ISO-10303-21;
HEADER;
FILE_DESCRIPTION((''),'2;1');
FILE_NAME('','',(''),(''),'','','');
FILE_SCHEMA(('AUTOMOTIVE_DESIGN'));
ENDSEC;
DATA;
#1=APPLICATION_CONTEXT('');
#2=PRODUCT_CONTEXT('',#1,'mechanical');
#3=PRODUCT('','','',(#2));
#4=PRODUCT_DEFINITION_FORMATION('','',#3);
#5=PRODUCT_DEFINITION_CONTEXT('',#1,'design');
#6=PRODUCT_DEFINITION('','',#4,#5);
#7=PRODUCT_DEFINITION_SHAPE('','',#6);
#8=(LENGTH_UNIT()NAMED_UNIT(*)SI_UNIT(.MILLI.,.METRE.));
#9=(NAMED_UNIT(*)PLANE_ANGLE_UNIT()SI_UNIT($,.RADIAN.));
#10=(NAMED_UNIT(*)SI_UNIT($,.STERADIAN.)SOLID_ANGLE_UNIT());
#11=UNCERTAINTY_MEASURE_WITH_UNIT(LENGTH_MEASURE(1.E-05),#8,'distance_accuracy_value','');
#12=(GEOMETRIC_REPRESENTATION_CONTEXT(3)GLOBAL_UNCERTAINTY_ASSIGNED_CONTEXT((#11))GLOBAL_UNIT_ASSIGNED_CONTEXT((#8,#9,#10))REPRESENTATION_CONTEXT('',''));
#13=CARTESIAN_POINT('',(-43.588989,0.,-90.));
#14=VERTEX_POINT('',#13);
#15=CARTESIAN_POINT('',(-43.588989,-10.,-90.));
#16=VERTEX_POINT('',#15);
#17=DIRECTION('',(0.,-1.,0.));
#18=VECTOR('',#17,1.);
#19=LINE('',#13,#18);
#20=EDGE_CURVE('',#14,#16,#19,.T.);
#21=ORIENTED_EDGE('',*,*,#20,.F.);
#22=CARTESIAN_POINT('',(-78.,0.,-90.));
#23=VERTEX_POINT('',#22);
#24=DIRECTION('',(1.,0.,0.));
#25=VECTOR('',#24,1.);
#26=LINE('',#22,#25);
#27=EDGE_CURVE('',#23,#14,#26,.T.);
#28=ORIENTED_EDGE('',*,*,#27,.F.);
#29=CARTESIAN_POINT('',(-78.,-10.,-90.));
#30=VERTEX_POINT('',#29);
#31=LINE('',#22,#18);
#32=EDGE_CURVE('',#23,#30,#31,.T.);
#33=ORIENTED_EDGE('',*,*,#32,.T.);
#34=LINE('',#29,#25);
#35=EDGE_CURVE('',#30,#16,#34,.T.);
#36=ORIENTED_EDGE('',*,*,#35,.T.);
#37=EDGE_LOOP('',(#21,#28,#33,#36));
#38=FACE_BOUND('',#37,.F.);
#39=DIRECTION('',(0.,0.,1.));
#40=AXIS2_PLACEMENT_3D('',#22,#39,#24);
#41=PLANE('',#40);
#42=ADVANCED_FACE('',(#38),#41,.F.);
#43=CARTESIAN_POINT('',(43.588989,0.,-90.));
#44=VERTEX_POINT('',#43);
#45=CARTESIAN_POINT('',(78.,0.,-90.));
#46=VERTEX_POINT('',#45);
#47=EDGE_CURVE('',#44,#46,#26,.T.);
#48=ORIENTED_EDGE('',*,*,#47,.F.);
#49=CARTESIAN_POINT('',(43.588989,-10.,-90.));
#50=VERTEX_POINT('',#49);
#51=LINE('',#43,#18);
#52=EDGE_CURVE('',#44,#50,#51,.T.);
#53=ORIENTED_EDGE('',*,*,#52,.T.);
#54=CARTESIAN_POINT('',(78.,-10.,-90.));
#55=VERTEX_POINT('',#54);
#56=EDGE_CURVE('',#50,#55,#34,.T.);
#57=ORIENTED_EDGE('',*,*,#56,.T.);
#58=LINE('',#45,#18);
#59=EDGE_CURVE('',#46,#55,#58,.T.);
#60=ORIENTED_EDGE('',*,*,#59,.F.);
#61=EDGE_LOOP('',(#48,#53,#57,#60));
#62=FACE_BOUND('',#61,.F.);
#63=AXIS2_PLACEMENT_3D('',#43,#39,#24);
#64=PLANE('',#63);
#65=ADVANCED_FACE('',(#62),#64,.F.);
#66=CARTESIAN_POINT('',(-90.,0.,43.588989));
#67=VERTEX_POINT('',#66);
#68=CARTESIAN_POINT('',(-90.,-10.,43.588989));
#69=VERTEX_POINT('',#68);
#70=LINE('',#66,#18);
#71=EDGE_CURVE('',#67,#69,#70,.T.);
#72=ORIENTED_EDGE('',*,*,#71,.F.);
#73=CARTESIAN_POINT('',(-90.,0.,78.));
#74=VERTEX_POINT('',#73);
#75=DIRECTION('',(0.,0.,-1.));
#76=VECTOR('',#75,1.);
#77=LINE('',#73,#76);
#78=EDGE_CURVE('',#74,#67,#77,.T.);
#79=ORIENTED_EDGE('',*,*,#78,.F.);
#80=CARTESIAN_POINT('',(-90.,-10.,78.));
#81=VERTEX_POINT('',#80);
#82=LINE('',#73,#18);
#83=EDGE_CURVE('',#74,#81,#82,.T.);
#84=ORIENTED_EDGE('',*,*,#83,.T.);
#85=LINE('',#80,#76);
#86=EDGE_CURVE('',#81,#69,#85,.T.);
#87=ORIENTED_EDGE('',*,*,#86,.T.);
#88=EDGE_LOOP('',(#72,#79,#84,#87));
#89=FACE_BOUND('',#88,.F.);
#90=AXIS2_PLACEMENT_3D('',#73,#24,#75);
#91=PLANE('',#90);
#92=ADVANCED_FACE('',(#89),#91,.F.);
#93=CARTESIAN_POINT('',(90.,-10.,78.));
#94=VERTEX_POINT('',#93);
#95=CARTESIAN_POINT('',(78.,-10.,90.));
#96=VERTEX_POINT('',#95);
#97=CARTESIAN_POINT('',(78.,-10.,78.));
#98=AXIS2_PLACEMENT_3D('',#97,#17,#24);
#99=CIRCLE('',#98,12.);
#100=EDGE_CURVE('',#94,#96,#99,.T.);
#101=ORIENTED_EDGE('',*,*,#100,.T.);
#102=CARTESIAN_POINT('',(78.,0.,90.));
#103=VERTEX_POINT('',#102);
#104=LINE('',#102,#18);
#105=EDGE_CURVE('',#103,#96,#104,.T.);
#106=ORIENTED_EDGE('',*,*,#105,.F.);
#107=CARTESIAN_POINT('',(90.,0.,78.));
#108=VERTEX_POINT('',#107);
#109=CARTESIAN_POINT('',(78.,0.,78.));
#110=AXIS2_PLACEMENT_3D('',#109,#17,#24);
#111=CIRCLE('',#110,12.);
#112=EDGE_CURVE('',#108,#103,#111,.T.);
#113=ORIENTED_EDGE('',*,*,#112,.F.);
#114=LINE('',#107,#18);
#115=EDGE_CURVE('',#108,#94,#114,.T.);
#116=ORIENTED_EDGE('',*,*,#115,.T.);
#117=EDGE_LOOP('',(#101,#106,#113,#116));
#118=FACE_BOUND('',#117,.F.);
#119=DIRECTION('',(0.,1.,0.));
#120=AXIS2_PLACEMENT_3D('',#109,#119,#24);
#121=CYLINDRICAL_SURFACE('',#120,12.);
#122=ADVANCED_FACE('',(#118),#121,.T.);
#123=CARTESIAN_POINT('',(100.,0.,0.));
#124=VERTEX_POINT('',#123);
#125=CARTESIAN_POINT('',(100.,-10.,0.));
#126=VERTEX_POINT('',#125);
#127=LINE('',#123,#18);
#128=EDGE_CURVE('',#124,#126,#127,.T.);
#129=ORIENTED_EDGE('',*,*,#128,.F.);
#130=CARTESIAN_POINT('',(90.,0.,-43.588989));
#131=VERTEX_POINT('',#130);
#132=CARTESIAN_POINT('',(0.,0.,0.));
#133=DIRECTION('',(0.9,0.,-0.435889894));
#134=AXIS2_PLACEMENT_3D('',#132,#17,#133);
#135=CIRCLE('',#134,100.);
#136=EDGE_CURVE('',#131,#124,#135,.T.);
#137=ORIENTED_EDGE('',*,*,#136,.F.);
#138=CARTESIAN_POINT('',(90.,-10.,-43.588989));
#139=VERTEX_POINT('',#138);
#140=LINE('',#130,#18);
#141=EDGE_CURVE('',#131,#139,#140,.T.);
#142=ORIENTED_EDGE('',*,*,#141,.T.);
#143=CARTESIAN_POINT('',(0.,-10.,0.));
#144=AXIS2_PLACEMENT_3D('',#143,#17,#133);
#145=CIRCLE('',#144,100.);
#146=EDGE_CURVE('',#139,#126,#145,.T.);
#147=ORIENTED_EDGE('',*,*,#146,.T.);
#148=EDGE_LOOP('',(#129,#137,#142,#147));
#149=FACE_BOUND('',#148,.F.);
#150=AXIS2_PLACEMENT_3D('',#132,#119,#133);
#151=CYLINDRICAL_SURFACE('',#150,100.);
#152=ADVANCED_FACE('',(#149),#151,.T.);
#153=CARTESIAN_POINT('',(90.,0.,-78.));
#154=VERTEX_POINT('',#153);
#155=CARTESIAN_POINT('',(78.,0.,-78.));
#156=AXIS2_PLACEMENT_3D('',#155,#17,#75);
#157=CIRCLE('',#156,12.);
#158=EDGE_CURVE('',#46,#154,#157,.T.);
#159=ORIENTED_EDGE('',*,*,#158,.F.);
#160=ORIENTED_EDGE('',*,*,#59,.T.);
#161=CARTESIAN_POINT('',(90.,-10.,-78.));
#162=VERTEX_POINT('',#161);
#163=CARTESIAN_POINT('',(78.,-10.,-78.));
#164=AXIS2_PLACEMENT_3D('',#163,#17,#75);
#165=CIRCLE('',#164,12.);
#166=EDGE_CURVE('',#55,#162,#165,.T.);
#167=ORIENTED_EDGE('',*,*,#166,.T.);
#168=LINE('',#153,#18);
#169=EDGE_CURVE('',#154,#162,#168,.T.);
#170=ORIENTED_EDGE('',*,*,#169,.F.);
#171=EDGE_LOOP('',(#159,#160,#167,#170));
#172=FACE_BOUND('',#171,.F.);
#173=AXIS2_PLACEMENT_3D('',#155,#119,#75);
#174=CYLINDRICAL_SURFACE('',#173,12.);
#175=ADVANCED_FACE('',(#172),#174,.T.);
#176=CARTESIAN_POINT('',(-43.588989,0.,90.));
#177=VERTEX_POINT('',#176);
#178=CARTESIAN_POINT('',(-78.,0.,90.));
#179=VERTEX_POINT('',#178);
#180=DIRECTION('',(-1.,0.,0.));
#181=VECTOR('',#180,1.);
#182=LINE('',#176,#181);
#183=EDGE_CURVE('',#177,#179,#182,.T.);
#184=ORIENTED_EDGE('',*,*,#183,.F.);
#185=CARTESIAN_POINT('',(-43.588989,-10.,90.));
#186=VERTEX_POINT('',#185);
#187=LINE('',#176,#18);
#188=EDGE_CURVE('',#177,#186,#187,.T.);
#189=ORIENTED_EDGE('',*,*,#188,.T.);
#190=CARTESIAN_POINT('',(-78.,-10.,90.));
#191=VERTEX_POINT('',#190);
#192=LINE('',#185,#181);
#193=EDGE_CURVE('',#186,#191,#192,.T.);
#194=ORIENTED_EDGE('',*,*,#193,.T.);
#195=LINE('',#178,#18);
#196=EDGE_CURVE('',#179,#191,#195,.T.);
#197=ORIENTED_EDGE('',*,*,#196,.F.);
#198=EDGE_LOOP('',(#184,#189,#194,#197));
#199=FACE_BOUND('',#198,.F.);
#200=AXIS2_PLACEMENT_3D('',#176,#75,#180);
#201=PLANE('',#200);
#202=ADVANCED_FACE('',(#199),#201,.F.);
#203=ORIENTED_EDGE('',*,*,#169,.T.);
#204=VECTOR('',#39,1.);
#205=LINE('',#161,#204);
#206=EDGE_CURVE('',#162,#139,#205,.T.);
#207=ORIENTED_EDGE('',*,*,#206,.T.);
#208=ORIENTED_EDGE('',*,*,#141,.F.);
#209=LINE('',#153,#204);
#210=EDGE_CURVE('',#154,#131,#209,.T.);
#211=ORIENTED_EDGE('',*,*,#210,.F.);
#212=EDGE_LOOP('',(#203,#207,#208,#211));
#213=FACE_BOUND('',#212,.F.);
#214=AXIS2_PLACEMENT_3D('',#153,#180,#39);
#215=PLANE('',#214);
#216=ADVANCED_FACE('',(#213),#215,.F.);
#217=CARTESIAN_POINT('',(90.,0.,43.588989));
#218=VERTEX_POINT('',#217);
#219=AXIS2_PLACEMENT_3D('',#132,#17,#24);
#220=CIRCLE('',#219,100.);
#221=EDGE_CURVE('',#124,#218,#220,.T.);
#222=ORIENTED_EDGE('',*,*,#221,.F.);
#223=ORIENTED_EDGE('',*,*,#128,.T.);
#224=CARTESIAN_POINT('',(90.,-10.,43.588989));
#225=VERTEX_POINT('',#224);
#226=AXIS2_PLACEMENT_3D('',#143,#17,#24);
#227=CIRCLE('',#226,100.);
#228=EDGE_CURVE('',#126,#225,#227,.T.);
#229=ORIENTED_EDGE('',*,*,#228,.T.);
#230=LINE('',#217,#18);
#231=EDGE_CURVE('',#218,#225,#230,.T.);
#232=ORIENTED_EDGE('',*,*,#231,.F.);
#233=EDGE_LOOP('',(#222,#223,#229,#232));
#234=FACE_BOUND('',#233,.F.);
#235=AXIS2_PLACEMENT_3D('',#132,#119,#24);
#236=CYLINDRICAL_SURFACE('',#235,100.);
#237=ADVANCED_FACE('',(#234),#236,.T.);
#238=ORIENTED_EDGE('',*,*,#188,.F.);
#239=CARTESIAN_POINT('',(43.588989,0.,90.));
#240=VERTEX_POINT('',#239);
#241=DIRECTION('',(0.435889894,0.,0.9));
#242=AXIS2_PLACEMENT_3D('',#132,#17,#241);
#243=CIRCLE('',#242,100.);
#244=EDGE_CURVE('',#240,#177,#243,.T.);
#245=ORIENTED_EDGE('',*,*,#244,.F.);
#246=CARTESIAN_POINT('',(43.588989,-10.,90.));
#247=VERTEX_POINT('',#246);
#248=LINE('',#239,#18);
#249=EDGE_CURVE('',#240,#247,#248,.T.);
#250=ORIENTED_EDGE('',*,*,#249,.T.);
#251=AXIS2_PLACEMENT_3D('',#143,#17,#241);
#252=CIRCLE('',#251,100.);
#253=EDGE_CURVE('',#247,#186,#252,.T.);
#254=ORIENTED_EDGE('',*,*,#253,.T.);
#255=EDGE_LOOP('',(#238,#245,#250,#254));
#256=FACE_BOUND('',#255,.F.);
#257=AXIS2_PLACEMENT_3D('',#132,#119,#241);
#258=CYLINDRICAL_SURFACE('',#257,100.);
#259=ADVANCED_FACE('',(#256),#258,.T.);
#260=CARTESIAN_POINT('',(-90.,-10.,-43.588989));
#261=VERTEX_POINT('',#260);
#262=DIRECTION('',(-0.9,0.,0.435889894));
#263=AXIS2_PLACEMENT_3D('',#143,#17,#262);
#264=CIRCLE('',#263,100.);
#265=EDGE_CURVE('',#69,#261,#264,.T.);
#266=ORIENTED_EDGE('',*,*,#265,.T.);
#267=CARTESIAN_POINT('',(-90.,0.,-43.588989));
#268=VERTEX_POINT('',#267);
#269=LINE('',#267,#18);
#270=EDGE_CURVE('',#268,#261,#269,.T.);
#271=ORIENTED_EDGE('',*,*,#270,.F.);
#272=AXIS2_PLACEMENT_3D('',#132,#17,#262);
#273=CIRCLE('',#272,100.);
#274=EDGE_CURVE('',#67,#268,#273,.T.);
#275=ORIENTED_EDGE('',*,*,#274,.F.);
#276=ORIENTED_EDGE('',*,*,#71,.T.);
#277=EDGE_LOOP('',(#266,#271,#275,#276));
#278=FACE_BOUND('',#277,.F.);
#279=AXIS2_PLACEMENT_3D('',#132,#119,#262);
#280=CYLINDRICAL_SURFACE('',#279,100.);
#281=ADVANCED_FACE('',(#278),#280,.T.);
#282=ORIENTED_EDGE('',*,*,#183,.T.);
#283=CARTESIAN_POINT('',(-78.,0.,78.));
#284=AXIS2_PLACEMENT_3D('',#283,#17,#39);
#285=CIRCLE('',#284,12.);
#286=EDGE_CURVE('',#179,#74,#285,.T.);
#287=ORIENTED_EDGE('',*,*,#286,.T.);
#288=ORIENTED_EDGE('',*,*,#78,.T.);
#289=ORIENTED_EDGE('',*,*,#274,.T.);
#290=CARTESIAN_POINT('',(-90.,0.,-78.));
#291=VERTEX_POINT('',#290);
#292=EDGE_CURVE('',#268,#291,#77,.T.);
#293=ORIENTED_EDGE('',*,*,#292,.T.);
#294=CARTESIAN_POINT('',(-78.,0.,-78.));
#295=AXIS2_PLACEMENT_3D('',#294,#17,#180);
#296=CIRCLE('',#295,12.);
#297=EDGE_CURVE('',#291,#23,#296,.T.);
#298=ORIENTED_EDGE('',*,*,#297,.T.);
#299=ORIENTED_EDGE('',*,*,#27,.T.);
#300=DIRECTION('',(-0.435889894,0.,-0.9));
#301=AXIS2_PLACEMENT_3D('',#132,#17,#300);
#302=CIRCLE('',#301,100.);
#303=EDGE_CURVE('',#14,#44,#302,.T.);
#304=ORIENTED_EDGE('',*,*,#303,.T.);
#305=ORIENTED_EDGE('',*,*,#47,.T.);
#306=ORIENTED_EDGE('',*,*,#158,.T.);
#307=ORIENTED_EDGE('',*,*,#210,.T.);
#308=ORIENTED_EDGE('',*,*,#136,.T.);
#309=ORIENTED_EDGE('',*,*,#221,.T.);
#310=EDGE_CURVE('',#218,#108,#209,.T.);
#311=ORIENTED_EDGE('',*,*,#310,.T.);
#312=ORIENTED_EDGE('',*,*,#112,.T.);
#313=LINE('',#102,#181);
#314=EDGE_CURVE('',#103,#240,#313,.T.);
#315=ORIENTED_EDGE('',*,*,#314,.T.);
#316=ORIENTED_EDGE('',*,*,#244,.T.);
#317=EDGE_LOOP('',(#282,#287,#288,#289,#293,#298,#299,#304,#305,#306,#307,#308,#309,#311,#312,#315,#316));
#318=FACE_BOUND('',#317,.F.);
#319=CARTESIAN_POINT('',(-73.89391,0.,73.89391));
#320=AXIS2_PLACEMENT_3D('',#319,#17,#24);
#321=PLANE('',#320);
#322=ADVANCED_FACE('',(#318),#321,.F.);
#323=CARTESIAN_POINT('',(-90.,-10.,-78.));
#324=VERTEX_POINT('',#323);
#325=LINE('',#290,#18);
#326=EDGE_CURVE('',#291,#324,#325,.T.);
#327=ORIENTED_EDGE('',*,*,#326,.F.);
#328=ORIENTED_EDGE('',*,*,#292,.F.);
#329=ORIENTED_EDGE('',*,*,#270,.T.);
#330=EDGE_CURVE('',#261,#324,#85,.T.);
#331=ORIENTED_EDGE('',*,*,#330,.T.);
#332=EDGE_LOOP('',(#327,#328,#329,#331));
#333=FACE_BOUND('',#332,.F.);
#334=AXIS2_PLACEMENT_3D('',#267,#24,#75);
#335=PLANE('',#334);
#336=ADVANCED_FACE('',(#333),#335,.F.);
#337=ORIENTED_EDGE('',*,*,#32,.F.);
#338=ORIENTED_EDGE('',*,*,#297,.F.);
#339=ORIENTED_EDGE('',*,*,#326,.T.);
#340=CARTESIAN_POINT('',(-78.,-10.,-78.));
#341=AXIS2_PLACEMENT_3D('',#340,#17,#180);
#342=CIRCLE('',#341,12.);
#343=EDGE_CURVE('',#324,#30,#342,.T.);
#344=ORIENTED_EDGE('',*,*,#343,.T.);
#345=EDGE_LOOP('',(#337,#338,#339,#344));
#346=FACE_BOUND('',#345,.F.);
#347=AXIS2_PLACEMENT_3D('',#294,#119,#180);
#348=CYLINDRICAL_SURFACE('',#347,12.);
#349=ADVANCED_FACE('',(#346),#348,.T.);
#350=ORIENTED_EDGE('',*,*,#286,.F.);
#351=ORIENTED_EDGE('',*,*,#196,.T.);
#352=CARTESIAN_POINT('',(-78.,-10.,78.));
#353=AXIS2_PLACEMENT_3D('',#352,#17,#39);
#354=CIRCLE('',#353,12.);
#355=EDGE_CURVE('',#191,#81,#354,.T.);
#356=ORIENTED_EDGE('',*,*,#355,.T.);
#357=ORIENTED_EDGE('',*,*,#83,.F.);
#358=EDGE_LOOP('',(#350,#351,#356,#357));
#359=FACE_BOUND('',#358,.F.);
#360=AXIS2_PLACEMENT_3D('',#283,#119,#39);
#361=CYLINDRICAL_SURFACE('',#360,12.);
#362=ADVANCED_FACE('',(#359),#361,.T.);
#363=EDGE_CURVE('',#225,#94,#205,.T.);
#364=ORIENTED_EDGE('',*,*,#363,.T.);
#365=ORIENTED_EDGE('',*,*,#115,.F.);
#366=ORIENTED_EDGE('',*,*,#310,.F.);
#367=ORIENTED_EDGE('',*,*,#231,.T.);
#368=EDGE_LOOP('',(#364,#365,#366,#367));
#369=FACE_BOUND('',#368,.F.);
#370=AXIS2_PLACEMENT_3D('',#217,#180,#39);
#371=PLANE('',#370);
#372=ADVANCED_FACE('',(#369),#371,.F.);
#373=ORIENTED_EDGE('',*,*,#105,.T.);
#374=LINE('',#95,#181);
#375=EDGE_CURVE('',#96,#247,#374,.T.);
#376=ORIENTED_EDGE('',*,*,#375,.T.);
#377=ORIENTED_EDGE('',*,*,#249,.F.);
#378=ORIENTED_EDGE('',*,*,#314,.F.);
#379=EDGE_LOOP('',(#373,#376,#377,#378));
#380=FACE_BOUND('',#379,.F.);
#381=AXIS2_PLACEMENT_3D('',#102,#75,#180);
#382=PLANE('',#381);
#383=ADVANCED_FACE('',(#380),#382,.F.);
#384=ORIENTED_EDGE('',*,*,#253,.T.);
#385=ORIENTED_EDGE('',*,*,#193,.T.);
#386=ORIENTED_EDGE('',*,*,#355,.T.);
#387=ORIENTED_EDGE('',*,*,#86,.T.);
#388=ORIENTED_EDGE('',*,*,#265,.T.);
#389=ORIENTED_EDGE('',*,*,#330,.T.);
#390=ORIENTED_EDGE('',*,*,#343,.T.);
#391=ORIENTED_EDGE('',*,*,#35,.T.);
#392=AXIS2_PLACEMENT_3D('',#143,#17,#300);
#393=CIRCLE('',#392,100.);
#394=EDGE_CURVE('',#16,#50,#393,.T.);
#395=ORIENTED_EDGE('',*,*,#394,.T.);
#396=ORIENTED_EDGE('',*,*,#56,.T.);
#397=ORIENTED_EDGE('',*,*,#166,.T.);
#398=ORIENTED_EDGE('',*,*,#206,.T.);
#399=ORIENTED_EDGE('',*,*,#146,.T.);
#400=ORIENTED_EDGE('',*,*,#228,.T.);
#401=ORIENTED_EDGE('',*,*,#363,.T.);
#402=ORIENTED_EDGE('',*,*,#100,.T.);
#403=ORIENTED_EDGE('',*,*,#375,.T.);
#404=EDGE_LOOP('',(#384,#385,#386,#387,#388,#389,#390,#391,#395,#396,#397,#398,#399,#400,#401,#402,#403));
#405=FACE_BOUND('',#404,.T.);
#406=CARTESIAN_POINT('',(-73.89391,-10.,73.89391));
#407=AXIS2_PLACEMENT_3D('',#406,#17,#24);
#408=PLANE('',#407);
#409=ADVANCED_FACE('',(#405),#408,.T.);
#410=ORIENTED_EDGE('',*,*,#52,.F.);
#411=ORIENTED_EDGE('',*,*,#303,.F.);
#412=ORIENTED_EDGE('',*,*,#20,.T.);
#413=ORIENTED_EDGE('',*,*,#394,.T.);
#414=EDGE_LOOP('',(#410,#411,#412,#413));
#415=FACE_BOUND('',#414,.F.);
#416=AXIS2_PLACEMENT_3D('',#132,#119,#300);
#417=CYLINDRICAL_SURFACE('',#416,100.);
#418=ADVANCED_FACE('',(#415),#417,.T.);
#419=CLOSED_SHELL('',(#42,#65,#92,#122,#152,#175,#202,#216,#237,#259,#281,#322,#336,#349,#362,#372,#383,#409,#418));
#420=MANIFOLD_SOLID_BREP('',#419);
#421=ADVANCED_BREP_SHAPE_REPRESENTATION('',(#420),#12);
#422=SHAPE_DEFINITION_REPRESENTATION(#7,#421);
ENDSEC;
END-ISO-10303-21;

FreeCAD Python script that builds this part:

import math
import FreeCAD as App
import Part
import Sketcher

V = App.Vector

doc = App.newDocument("Part")
body = doc.addObject("PartDesign::Body", "Body")

sketch1 = doc.addObject("Sketcher::SketchObject", "Sketch")
body.addObject(sketch1)
sketch1.AttachmentSupport = (doc.XZ_Plane, [""])
sketch1.MapMode = "FlatFace"
sketch1.addGeometry([
    Part.LineSegment(V(-44, 90, 0), V(-78, 90, 0)),
    Part.ArcOfCircle(Part.Circle(V(-78, 78, 0), V(0, 0, 1), 12), math.radians(90), math.radians(180)),
    Part.LineSegment(V(-90, 78, 0), V(-90, 44, 0)),
    Part.ArcOfCircle(Part.Circle(V(0, 0, 0), V(0, 0, 1), 100), math.radians(154), math.radians(206)),
    Part.LineSegment(V(-90, -44, 0), V(-90, -78, 0)),
    Part.ArcOfCircle(Part.Circle(V(-78, -78, 0), V(0, 0, 1), 12), math.radians(180), math.radians(270)),
    Part.LineSegment(V(-78, -90, 0), V(-44, -90, 0)),
    Part.ArcOfCircle(Part.Circle(V(0, 0, 0), V(0, 0, 1), 100), math.radians(-116), math.radians(-64)),
    Part.LineSegment(V(44, -90, 0), V(78, -90, 0)),
    Part.ArcOfCircle(Part.Circle(V(78, -78, 0), V(0, 0, 1), 12), math.radians(-90), math.radians(0)),
    Part.LineSegment(V(90, -78, 0), V(90, -44, 0)),
    Part.ArcOfCircle(Part.Circle(V(0, 0, 0), V(0, 0, 1), 100), math.radians(-26), math.radians(0)),
    Part.ArcOfCircle(Part.Circle(V(0, 0, 0), V(0, 0, 1), 100), math.radians(0), math.radians(26)),
    Part.LineSegment(V(90, 44, 0), V(90, 78, 0)),
    Part.ArcOfCircle(Part.Circle(V(78, 78, 0), V(0, 0, 1), 12), math.radians(0), math.radians(90)),
    Part.LineSegment(V(78, 90, 0), V(44, 90, 0)),
    Part.ArcOfCircle(Part.Circle(V(0, 0, 0), V(0, 0, 1), 100), math.radians(64), math.radians(116)),
], False)
sketch1.addConstraint([
    Sketcher.Constraint("Tangent", 0, 2, 1, 1),
    Sketcher.Constraint("Tangent", 1, 2, 2, 1),
    Sketcher.Constraint("Coincident", 2, 2, 3, 1),
    Sketcher.Constraint("Coincident", 3, 2, 4, 1),
    Sketcher.Constraint("Tangent", 4, 2, 5, 1),
    Sketcher.Constraint("Tangent", 5, 2, 6, 1),
    Sketcher.Constraint("Coincident", 6, 2, 7, 1),
    Sketcher.Constraint("Coincident", 7, 2, 8, 1),
    Sketcher.Constraint("Tangent", 8, 2, 9, 1),
    Sketcher.Constraint("Tangent", 9, 2, 10, 1),
    Sketcher.Constraint("Coincident", 10, 2, 11, 1),
    Sketcher.Constraint("Tangent", 11, 2, 12, 1),
    Sketcher.Constraint("Coincident", 12, 2, 13, 1),
    Sketcher.Constraint("Tangent", 13, 2, 14, 1),
    Sketcher.Constraint("Tangent", 14, 2, 15, 1),
    Sketcher.Constraint("Coincident", 15, 2, 16, 1),
    Sketcher.Constraint("Coincident", 16, 2, 0, 1),
    Sketcher.Constraint("Horizontal", 0),
    Sketcher.Constraint("Vertical", 2),
    Sketcher.Constraint("Vertical", 4),
    Sketcher.Constraint("Horizontal", 6),
    Sketcher.Constraint("Horizontal", 8),
    Sketcher.Constraint("Vertical", 10),
    Sketcher.Constraint("Vertical", 13),
    Sketcher.Constraint("Horizontal", 15),
    Sketcher.Constraint("Coincident", 3, 3, -1, 1),
    Sketcher.Constraint("Coincident", 7, 3, -1, 1),
    Sketcher.Constraint("Coincident", 11, 3, -1, 1),
    Sketcher.Constraint("Coincident", 16, 3, -1, 1),
    Sketcher.Constraint("Equal", 1, 5),
    Sketcher.Constraint("Equal", 3, 7),
    Sketcher.Constraint("Equal", 5, 9),
    Sketcher.Constraint("Equal", 7, 11),
    Sketcher.Constraint("Equal", 11, 12),
    Sketcher.Constraint("Equal", 9, 14),
    Sketcher.Constraint("Equal", 12, 16),
    Sketcher.Constraint("Symmetric", 1, 3, 9, 3, -1, 1),
    Sketcher.Constraint("Symmetric", 5, 3, 14, 3, -1, 1),
    Sketcher.Constraint("Symmetric", 5, 3, 9, 3, -2),
    Sketcher.Constraint("PointOnObject", 11, 2, -1),
    Sketcher.Constraint("Equal", 15, 2),
    Sketcher.Constraint("Radius", 1, 12.0),
    Sketcher.Constraint("Radius", 3, 100.0),
    Sketcher.Constraint("DistanceX", 1, 3, -1, 1, 78.0),
])
pad1 = doc.addObject("PartDesign::Pad", "Pad")
body.addObject(pad1)
pad1.Profile = sketch1
pad1.Length = 10

doc.recompute()
